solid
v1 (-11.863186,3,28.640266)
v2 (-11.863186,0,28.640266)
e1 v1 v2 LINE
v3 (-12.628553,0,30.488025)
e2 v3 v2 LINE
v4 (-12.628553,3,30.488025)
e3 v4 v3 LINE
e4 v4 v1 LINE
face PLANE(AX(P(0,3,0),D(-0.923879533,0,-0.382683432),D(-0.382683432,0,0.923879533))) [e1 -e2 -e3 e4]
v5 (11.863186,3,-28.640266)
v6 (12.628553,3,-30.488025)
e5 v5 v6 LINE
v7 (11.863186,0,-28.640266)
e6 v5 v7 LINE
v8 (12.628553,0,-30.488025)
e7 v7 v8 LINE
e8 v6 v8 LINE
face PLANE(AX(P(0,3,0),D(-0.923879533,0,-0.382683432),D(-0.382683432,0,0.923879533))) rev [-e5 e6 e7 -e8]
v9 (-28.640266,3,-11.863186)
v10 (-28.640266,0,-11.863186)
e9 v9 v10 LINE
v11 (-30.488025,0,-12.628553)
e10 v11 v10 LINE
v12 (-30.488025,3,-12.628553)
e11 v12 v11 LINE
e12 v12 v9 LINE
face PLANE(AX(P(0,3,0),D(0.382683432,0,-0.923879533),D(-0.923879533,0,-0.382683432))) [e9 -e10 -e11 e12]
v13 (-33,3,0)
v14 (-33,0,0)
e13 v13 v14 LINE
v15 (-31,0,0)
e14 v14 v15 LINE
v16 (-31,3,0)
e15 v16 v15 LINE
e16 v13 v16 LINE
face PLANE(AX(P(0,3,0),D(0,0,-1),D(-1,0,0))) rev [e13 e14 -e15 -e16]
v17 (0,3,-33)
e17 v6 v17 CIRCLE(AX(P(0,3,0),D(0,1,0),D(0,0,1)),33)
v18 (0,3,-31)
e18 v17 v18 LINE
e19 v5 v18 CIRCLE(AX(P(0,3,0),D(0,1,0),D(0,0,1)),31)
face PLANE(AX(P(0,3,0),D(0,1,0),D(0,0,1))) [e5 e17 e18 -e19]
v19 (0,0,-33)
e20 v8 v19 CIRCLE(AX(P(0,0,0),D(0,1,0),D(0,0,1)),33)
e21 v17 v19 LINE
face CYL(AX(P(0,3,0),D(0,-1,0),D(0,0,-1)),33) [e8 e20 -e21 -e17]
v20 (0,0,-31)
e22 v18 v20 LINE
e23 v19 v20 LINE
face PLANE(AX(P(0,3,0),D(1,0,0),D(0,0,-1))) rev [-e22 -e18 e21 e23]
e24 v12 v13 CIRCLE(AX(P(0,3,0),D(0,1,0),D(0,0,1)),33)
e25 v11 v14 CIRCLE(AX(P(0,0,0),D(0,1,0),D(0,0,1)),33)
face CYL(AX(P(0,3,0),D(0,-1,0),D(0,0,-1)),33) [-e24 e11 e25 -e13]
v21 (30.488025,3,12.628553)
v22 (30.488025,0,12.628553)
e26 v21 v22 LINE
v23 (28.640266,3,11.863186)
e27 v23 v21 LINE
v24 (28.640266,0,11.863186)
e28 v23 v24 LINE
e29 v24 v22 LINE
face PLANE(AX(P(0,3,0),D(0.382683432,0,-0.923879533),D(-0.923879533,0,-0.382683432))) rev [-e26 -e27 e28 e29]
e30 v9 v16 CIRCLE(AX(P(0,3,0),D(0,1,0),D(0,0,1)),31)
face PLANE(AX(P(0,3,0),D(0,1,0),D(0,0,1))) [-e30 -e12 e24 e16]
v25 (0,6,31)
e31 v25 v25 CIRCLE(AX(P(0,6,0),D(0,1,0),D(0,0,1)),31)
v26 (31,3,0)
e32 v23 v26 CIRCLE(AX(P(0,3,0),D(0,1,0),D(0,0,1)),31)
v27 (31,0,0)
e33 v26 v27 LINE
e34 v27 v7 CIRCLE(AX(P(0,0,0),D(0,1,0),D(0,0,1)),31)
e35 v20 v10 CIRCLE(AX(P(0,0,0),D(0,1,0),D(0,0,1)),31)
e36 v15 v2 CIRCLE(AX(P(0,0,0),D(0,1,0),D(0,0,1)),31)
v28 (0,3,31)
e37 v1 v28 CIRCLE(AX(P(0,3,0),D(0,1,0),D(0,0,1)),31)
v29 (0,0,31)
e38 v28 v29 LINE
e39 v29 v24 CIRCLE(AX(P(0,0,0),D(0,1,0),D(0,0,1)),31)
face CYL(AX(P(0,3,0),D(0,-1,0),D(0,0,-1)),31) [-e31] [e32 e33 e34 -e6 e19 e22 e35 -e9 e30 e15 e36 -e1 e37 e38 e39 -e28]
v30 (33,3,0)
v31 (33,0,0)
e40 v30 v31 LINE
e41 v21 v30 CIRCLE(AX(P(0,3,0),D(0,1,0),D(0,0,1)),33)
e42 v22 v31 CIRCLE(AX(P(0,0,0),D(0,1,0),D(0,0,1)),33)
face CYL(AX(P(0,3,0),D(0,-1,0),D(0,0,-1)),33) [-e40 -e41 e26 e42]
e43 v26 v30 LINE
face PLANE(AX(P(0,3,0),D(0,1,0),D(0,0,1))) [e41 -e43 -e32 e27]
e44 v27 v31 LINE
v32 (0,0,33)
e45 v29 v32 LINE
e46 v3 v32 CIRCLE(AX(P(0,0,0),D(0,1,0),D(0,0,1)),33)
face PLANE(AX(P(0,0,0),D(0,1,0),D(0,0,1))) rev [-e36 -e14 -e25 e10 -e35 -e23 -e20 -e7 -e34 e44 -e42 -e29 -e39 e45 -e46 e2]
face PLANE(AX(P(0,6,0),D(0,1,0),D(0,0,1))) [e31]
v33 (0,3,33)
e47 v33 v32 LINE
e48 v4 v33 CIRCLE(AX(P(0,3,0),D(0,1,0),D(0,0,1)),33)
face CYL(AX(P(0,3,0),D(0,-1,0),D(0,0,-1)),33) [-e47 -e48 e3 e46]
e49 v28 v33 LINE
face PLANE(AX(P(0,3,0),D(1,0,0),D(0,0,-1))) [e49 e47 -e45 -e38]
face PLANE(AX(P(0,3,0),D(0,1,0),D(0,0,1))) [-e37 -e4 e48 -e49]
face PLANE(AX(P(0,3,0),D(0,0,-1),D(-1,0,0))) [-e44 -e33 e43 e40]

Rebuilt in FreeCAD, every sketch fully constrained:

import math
import FreeCAD as App
import Part
import Sketcher
Q = App.Units.Quantity

doc = App.newDocument("Part")
body = doc.addObject("PartDesign::Body", "Body")

sketch1 = body.newObject("Sketcher::SketchObject", "Sketch")
sketch1.AttachmentSupport = (doc.getObject("XZ_Plane"), [""])
sketch1.MapMode = "FlatFace"
sketch1.addGeometry(Part.LineSegment(App.Vector(-11.863186, 28.640266, 0), App.Vector(-12.628553, 30.488025, 0)), False)
sketch1.addGeometry(Part.ArcOfCircle(Part.Circle(App.Vector(0, 0, 0), App.Vector(0, 0, 1), 33), math.radians(90), math.radians(112.5)), False)
sketch1.addGeometry(Part.LineSegment(App.Vector(0, 33, 0), App.Vector(0, 31, 0)), False)
sketch1.addGeometry(Part.ArcOfCircle(Part.Circle(App.Vector(0, 0, 0), App.Vector(0, 0, 1), 31), math.radians(22.5), math.radians(90)), False)
sketch1.addGeometry(Part.LineSegment(App.Vector(28.640266, 11.863186, 0), App.Vector(30.488025, 12.628553, 0)), False)
sketch1.addGeometry(Part.ArcOfCircle(Part.Circle(App.Vector(0, 0, 0), App.Vector(0, 0, 1), 33), math.radians(0), math.radians(22.5)), False)
sketch1.addGeometry(Part.LineSegment(App.Vector(33, 0, 0), App.Vector(31, 0, 0)), False)
sketch1.addGeometry(Part.ArcOfCircle(Part.Circle(App.Vector(0, 0, 0), App.Vector(0, 0, 1), 31), math.radians(-67.5), math.radians(0)), False)
sketch1.addGeometry(Part.LineSegment(App.Vector(11.863186, -28.640266, 0), App.Vector(12.628553, -30.488025, 0)), False)
sketch1.addGeometry(Part.ArcOfCircle(Part.Circle(App.Vector(0, 0, 0), App.Vector(0, 0, 1), 33), math.radians(-90), math.radians(-67.5)), False)
sketch1.addGeometry(Part.LineSegment(App.Vector(0, -33, 0), App.Vector(0, -31, 0)), False)
sketch1.addGeometry(Part.ArcOfCircle(Part.Circle(App.Vector(0, 0, 0), App.Vector(0, 0, 1), 31), math.radians(-157.5), math.radians(-90)), False)
sketch1.addGeometry(Part.LineSegment(App.Vector(-28.640266, -11.863186, 0), App.Vector(-30.488025, -12.628553, 0)), False)
sketch1.addGeometry(Part.ArcOfCircle(Part.Circle(App.Vector(0, 0, 0), App.Vector(0, 0, 1), 33), math.radians(-180), math.radians(-157.5)), False)
sketch1.addGeometry(Part.LineSegment(App.Vector(-33, 0, 0), App.Vector(-31, 0, 0)), False)
sketch1.addGeometry(Part.ArcOfCircle(Part.Circle(App.Vector(0, 0, 0), App.Vector(0, 0, 1), 31), math.radians(112.5), math.radians(180)), False)
sketch1.addConstraint(Sketcher.Constraint("Coincident", 0, 2, 1, 2))
sketch1.addConstraint(Sketcher.Constraint("Coincident", 1, 1, 2, 1))
sketch1.addConstraint(Sketcher.Constraint("Coincident", 2, 2, 3, 2))
sketch1.addConstraint(Sketcher.Constraint("Coincident", 3, 1, 4, 1))
sketch1.addConstraint(Sketcher.Constraint("Coincident", 4, 2, 5, 2))
sketch1.addConstraint(Sketcher.Constraint("Coincident", 5, 1, 6, 1))
sketch1.addConstraint(Sketcher.Constraint("Coincident", 6, 2, 7, 2))
sketch1.addConstraint(Sketcher.Constraint("Coincident", 7, 1, 8, 1))
sketch1.addConstraint(Sketcher.Constraint("Coincident", 8, 2, 9, 2))
sketch1.addConstraint(Sketcher.Constraint("Coincident", 9, 1, 10, 1))
sketch1.addConstraint(Sketcher.Constraint("Coincident", 10, 2, 11, 2))
sketch1.addConstraint(Sketcher.Constraint("Coincident", 11, 1, 12, 1))
sketch1.addConstraint(Sketcher.Constraint("Coincident", 12, 2, 13, 2))
sketch1.addConstraint(Sketcher.Constraint("Coincident", 13, 1, 14, 1))
sketch1.addConstraint(Sketcher.Constraint("Coincident", 14, 2, 15, 2))
sketch1.addConstraint(Sketcher.Constraint("Coincident", 15, 1, 0, 1))
sketch1.addConstraint(Sketcher.Constraint("Vertical", 2))
sketch1.addConstraint(Sketcher.Constraint("Horizontal", 6))
sketch1.addConstraint(Sketcher.Constraint("Vertical", 10))
sketch1.addConstraint(Sketcher.Constraint("Horizontal", 14))
sketch1.addConstraint(Sketcher.Constraint("Coincident", 1, 3, -1, 1))
sketch1.addConstraint(Sketcher.Constraint("Coincident", 3, 3, -1, 1))
sketch1.addConstraint(Sketcher.Constraint("Coincident", 5, 3, -1, 1))
sketch1.addConstraint(Sketcher.Constraint("Coincident", 7, 3, -1, 1))
sketch1.addConstraint(Sketcher.Constraint("Coincident", 9, 3, -1, 1))
sketch1.addConstraint(Sketcher.Constraint("Coincident", 11, 3, -1, 1))
sketch1.addConstraint(Sketcher.Constraint("Coincident", 13, 3, -1, 1))
sketch1.addConstraint(Sketcher.Constraint("Coincident", 15, 3, -1, 1))
sketch1.addConstraint(Sketcher.Constraint("Equal", 1, 5))
sketch1.addConstraint(Sketcher.Constraint("Equal", 3, 7))
sketch1.addConstraint(Sketcher.Constraint("Equal", 5, 9))
sketch1.addConstraint(Sketcher.Constraint("Equal", 7, 11))
sketch1.addConstraint(Sketcher.Constraint("Equal", 9, 13))
sketch1.addConstraint(Sketcher.Constraint("Equal", 11, 15))
sketch1.addConstraint(Sketcher.Constraint("PointOnObject", 1, 1, -2))
sketch1.addConstraint(Sketcher.Constraint("PointOnObject", 5, 1, -1))
sketch1.addConstraint(Sketcher.Constraint("PointOnObject", 9, 1, -2))
sketch1.addConstraint(Sketcher.Constraint("PointOnObject", 13, 1, -1))
sketch1.addConstraint(Sketcher.Constraint("Perpendicular", 0, 4))
sketch1.addConstraint(Sketcher.Constraint("Perpendicular", 4, 8))
sketch1.addConstraint(Sketcher.Constraint("Perpendicular", 8, 12))
sketch1.addConstraint(Sketcher.Constraint("Radius", 1, Q("33 mm")))
sketch1.addConstraint(Sketcher.Constraint("Radius", 3, Q("31 mm")))
sketch1.addConstraint(Sketcher.Constraint("Angle", 0, Q("112.5 deg")))
sketch1.addConstraint(Sketcher.Constraint("DistanceX", 0, 2, -1, 1, Q("12.628553 mm")))
sketch1.addConstraint(Sketcher.Constraint("DistanceX", -1, 1, 3, 1, Q("28.640266 mm")))
sketch1.addConstraint(Sketcher.Constraint("DistanceX", -1, 1, 7, 1, Q("11.863186 mm")))
sketch1.addConstraint(Sketcher.Constraint("DistanceX", 11, 1, -1, 1, Q("28.640266 mm")))
pad1 = body.newObject("PartDesign::Pad", "Pad")
pad1.Profile = sketch1
pad1.Length = 3
pad1.Reversed = True

sketch2 = body.newObject("Sketcher::SketchObject", "Sketch001")
sketch2.AttachmentSupport = (doc.getObject("XZ_Plane"), [""])
sketch2.MapMode = "FlatFace"
sketch2.AttachmentOffset = App.Placement(App.Vector(0, 0, -3), App.Rotation())
sketch2.addGeometry(Part.Circle(App.Vector(0, 0, 0), App.Vector(0, 0, 1), 31), False)
sketch2.addConstraint(Sketcher.Constraint("Coincident", 0, 3, -1, 1))
sketch2.addConstraint(Sketcher.Constraint("Diameter", 0, Q("62 mm")))
pad2 = body.newObject("PartDesign::Pad", "Pad001")
pad2.Profile = sketch2
pad2.Length = 3
pad2.Reversed = True

doc.recompute()
